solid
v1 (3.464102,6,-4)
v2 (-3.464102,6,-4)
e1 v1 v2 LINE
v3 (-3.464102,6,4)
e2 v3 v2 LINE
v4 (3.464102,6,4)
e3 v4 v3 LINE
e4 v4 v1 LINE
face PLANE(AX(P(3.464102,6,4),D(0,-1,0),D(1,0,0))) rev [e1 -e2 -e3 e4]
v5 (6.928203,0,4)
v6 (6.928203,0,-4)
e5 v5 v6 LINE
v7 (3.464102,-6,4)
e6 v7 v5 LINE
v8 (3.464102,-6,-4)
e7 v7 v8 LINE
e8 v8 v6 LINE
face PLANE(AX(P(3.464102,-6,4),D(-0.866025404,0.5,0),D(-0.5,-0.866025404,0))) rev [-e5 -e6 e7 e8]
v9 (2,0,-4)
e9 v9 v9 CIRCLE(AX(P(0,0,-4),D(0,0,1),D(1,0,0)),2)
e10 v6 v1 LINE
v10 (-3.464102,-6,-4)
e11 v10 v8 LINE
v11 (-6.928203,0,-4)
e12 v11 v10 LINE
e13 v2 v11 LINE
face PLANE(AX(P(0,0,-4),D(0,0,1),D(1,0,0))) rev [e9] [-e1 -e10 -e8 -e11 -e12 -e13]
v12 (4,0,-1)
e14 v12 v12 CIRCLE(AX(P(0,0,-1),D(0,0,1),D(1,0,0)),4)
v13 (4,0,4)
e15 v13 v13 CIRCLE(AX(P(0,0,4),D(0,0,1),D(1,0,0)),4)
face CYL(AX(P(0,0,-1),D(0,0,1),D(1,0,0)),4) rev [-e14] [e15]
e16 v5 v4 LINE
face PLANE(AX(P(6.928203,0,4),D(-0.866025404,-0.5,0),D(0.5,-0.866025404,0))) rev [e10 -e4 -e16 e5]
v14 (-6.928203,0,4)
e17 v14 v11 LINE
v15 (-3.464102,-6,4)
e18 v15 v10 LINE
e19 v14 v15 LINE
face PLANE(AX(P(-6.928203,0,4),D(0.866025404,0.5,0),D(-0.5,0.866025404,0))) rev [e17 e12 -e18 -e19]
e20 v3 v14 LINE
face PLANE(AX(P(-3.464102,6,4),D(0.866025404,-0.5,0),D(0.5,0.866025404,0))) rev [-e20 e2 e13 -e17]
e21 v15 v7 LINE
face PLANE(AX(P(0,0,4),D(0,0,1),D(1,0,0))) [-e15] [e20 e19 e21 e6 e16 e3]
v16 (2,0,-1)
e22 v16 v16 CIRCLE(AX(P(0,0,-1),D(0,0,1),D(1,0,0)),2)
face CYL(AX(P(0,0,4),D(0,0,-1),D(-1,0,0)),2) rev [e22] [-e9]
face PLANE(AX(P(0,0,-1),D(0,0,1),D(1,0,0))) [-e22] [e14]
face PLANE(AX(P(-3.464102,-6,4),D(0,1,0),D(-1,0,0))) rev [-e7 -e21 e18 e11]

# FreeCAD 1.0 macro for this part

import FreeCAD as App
import Part
import Sketcher
from FreeCAD import Vector
Q = App.Units.Quantity

doc = App.newDocument("Part")
body = doc.addObject("PartDesign::Body", "Body")

# Sketch on XY plane
sketch1 = body.newObject("Sketcher::SketchObject", "Sketch")
sketch1.AttachmentSupport = (doc.getObject("XY_Plane"), [""])
sketch1.MapMode = "FlatFace"
sketch1.addGeometry([
    Part.LineSegment(Vector(6.9, 0, 0), Vector(3.5, 6, 0)),  # 0
    Part.LineSegment(Vector(3.5, 6, 0), Vector(-3.5, 6, 0)),  # 1
    Part.LineSegment(Vector(-3.5, 6, 0), Vector(-6.9, 0, 0)),  # 2
    Part.LineSegment(Vector(-6.9, 0, 0), Vector(-3.5, -6, 0)),  # 3
    Part.LineSegment(Vector(-3.5, -6, 0), Vector(3.5, -6, 0)),  # 4
    Part.LineSegment(Vector(3.5, -6, 0), Vector(6.9, 0, 0)),  # 5
    Part.Circle(Vector(0, 0, 0), Vector(0, 0, 1), 2),  # 6
], False)
sketch1.addConstraint([
    Sketcher.Constraint("Coincident", 0, 2, 1, 1),
    Sketcher.Constraint("Coincident", 1, 2, 2, 1),
    Sketcher.Constraint("Coincident", 2, 2, 3, 1),
    Sketcher.Constraint("Coincident", 3, 2, 4, 1),
    Sketcher.Constraint("Coincident", 4, 2, 5, 1),
    Sketcher.Constraint("Coincident", 5, 2, 0, 1),
    Sketcher.Constraint("Horizontal", 1),
    Sketcher.Constraint("Horizontal", 4),
    Sketcher.Constraint("Coincident", 6, 3, -1, 1),
    Sketcher.Constraint("Symmetric", 0, 2, 3, 2, -1, 1),
    Sketcher.Constraint("Symmetric", 2, 2, 5, 2, -1, 1),
    Sketcher.Constraint("PointOnObject", 2, 2, -1),
    Sketcher.Constraint("Parallel", 2, 5),
    Sketcher.Constraint("Vertical", 1, 2, 3, 2),
    Sketcher.Constraint("Diameter", 6, Q("4 mm")),
    Sketcher.Constraint("Angle", 0, Q("120 deg")),
    Sketcher.Constraint("DistanceY", -1, 1, 0, 2, Q("6 mm")),
    Sketcher.Constraint("DistanceX", -1, 1, 0, 2, Q("3.464102 mm")),
])
pad1 = body.newObject("PartDesign::Pad", "Pad")
pad1.Profile = sketch1
pad1.Length = 8
pad1.Midplane = True

# Sketch on XY plane
sketch2 = body.newObject("Sketcher::SketchObject", "Sketch001")
sketch2.AttachmentSupport = (doc.getObject("XY_Plane"), [""])
sketch2.MapMode = "FlatFace"
sketch2.AttachmentOffset = App.Placement(Vector(0, 0, 4), App.Rotation())
sketch2.addGeometry(Part.Circle(Vector(0, 0, 0), Vector(0, 0, 1), 4), False)
sketch2.addConstraint([
    Sketcher.Constraint("Coincident", 0, 3, -1, 1),
    Sketcher.Constraint("Diameter", 0, Q("8 mm")),
])
pocket1 = body.newObject("PartDesign::Pocket", "Pocket")
pocket1.Profile = sketch2
pocket1.Length = 5

doc.recompute()
